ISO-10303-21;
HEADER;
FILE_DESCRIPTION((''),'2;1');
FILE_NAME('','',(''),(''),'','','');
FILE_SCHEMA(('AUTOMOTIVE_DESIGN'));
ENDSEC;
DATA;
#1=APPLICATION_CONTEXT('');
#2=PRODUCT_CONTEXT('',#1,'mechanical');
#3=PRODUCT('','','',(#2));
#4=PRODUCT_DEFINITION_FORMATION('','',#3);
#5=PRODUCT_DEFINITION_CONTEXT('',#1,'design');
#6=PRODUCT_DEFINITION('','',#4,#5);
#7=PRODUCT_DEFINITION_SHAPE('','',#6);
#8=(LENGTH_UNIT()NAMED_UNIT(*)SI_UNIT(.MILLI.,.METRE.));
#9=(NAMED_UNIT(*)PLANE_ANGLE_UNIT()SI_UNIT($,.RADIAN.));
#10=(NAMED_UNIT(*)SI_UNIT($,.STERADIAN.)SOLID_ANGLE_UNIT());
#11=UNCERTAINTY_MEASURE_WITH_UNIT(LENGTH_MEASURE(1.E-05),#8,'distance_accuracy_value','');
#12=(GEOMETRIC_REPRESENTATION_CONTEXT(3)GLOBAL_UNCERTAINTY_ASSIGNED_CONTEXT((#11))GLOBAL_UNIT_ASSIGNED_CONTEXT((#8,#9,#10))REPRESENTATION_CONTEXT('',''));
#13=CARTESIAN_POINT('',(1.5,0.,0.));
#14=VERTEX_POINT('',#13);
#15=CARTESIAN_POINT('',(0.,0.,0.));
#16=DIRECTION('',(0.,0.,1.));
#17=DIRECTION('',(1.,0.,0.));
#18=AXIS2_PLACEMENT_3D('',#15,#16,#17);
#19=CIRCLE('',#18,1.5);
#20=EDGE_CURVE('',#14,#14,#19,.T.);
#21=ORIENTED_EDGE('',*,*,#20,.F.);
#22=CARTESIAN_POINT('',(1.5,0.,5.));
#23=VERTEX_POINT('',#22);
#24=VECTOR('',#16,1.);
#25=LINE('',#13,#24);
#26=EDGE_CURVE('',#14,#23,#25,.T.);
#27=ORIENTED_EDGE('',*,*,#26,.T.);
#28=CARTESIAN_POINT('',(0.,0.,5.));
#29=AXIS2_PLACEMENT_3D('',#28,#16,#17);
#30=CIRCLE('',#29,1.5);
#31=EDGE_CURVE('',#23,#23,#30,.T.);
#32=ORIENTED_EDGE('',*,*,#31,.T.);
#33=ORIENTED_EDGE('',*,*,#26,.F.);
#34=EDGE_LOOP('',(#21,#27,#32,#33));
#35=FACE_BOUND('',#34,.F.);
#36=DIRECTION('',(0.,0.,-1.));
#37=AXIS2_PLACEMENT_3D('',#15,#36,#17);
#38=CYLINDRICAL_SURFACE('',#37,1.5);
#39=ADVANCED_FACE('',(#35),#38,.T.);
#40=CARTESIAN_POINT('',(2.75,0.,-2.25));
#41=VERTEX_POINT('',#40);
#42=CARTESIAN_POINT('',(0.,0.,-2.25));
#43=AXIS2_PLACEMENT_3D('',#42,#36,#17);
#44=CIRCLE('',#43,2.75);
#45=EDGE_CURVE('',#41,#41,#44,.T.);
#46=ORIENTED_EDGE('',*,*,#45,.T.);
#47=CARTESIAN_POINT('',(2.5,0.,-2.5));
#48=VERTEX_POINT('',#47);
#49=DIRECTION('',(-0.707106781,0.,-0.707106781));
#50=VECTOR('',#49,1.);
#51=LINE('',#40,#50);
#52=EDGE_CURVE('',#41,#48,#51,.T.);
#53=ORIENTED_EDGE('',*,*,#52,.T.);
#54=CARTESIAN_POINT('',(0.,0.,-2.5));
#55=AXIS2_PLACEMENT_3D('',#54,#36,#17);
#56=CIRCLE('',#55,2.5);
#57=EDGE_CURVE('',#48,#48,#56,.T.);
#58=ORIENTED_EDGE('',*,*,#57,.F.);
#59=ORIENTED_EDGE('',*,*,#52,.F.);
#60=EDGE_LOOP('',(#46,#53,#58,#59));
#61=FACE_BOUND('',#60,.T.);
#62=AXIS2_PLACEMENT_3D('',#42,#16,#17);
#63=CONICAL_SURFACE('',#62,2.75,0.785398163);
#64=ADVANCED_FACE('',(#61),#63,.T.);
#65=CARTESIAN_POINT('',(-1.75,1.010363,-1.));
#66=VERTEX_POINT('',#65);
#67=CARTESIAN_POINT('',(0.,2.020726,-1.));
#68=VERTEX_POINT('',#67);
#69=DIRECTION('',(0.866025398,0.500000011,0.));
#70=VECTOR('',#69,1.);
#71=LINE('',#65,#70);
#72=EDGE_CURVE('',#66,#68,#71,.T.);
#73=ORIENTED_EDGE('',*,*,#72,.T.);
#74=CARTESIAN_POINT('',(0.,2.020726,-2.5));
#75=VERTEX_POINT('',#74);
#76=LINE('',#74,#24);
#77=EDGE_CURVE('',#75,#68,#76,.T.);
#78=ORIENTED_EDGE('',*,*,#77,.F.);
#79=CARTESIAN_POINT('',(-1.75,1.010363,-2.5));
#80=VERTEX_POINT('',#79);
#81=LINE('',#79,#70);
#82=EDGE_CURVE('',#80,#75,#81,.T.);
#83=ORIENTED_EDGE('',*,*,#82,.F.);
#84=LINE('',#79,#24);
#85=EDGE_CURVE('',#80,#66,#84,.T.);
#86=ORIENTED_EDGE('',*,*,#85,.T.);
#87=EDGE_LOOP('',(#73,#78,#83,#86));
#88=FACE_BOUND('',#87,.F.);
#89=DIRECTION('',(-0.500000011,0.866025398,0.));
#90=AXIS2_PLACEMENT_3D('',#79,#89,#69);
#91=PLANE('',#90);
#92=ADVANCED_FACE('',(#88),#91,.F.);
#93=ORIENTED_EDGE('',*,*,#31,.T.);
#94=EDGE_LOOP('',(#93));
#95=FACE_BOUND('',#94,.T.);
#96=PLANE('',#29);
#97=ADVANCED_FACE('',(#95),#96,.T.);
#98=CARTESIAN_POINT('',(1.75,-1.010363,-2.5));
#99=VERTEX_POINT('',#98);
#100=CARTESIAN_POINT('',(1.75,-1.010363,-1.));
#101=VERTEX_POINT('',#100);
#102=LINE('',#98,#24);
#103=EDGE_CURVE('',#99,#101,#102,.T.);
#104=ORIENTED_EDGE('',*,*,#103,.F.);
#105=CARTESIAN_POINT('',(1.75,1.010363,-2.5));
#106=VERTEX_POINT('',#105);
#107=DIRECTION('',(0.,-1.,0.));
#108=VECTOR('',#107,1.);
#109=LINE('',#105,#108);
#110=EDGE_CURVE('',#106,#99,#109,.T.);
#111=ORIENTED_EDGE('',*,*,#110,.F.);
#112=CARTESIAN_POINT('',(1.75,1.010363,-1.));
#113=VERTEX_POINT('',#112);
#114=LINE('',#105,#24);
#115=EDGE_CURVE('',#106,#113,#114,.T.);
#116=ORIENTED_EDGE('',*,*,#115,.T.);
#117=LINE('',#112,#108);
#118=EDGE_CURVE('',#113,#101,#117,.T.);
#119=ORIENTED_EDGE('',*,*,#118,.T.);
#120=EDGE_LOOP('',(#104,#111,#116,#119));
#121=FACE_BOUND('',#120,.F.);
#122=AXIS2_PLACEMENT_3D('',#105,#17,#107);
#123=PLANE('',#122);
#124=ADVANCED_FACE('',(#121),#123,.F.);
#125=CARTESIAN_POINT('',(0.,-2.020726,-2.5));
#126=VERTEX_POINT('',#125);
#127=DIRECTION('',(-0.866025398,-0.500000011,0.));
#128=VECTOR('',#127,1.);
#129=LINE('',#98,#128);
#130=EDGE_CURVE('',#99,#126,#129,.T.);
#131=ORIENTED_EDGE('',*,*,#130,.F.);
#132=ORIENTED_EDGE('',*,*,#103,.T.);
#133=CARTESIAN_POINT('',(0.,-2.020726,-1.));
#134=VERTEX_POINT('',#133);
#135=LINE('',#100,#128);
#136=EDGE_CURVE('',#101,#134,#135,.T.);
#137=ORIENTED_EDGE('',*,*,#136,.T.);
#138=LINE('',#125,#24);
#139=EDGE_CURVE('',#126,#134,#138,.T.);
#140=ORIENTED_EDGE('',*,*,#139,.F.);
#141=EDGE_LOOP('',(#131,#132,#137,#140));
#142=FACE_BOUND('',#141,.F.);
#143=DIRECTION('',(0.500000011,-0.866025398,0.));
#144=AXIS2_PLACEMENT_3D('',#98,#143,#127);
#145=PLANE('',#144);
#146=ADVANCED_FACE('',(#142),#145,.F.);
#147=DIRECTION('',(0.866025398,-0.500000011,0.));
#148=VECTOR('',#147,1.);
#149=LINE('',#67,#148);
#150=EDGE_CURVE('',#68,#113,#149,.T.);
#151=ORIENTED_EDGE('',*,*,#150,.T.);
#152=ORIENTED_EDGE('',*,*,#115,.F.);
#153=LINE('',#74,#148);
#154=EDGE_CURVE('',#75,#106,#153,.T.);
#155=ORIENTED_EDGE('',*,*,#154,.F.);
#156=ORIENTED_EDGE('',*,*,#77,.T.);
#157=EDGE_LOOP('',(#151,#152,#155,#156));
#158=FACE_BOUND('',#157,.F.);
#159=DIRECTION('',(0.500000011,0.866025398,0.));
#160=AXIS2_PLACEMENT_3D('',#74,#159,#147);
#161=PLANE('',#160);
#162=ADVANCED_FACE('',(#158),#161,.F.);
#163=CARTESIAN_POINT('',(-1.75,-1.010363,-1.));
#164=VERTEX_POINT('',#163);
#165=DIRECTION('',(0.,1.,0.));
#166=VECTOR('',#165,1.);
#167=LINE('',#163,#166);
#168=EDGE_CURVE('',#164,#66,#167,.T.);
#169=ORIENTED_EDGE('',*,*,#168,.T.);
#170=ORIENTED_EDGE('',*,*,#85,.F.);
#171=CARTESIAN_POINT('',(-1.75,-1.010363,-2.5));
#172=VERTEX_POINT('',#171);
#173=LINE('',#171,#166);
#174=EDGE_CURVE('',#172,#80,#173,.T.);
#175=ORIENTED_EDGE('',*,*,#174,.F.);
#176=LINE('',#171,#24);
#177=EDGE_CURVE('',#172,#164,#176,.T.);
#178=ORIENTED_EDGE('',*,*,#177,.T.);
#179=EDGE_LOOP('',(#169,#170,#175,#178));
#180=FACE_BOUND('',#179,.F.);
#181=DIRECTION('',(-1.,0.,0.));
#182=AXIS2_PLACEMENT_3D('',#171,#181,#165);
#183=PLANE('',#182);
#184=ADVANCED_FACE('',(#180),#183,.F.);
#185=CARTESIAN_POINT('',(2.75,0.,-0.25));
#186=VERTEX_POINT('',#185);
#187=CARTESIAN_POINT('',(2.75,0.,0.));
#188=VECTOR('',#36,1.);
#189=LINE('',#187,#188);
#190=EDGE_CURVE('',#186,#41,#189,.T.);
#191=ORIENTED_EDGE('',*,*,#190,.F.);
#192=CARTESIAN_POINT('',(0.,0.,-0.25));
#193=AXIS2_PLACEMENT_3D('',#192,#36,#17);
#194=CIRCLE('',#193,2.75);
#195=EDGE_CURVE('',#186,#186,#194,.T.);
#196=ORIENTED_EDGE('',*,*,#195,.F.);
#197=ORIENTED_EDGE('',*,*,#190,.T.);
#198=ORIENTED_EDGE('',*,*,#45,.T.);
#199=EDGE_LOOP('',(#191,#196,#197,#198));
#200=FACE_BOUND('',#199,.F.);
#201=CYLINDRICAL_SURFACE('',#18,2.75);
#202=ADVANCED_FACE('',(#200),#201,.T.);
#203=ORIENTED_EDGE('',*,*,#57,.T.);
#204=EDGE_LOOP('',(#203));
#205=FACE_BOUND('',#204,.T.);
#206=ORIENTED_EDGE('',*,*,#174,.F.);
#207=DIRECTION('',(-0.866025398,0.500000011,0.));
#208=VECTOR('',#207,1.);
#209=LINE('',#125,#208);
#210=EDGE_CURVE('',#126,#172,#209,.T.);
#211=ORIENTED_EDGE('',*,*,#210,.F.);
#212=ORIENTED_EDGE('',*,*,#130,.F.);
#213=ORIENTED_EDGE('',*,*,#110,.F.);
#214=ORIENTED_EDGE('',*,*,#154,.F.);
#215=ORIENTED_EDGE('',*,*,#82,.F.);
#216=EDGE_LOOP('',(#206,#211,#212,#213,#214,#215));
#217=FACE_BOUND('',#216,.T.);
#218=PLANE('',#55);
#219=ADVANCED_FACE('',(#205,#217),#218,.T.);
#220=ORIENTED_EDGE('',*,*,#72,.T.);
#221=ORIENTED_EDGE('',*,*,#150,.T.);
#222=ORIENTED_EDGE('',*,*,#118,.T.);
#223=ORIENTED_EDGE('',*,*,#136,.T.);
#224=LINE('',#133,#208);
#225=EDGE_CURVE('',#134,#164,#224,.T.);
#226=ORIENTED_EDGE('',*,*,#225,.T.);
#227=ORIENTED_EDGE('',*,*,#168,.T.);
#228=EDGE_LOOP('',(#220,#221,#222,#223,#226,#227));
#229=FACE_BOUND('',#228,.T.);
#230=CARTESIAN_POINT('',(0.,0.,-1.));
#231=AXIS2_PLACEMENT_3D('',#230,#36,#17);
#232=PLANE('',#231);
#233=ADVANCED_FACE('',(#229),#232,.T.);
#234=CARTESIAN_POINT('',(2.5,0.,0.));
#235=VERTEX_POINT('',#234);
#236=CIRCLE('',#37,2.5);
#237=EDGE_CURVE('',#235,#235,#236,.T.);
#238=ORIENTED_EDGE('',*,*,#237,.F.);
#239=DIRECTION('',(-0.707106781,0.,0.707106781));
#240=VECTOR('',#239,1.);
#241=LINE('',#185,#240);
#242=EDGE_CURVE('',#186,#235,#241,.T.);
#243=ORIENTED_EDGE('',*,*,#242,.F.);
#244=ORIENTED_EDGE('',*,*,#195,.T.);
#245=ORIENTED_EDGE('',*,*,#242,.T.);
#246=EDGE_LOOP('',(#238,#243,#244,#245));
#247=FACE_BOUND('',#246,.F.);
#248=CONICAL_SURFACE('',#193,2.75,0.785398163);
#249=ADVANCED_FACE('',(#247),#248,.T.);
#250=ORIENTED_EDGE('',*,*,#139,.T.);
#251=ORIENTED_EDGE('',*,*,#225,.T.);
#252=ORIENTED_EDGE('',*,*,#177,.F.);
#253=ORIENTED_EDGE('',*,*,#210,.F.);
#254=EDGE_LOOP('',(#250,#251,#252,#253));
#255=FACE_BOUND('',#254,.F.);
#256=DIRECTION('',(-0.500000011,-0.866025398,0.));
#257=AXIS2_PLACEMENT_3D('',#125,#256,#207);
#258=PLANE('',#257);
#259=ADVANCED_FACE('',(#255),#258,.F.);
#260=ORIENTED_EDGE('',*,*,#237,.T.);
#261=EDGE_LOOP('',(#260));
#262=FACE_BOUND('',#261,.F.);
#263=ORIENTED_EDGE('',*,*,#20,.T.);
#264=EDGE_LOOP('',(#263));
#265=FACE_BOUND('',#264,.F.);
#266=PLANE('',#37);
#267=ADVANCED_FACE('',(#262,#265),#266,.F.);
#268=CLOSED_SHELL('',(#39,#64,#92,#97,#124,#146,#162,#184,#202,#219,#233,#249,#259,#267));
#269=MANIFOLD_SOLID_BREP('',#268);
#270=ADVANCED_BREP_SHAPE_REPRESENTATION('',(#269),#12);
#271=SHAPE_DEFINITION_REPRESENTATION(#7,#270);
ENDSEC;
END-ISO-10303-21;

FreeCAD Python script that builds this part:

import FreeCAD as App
import Part
import Sketcher

V = App.Vector
Q = App.Units.Quantity


def edges_at(feature, points):
    """Names of the edges that pass closest to the given points."""
    edges = feature.Shape.Edges
    near = lambda p: min(range(len(edges)), key=lambda i: edges[i].distToShape(Part.Vertex(*p))[0])
    return sorted({f"Edge{near(p) + 1}" for p in points})


def add_polygon(sketch, points):
    """Adds a closed chain of lines whose ends are joined by coincident constraints."""
    first, n = sketch.GeometryCount, len(points)
    for a, b in zip(points, points[1:] + points[:1]):
        sketch.addGeometry(Part.LineSegment(App.Vector(*a, 0), App.Vector(*b, 0)), False)
    for i in range(n):
        sketch.addConstraint(Sketcher.Constraint("Coincident", first + i, 2, first + (i + 1) % n, 1))

doc = App.newDocument("Part")
body = doc.addObject("PartDesign::Body", "Body")

sketch1 = body.newObject("Sketcher::SketchObject", "Sketch")
sketch1.AttachmentSupport = (doc.getObject("XY_Plane"), [""])
sketch1.MapMode = "FlatFace"
sketch1.addGeometry(Part.Circle(V(0, 0, 0), V(0, 0, 1), 1.5), False)
sketch1.addConstraint([
    Sketcher.Constraint("Coincident", 0, 3, -1, 1),
    Sketcher.Constraint("Diameter", 0, Q("3 mm")),
])
pad1 = body.newObject("PartDesign::Pad", "Pad")
pad1.Profile = sketch1
pad1.Length = 5

sketch2 = body.newObject("Sketcher::SketchObject", "Sketch001")
sketch2.AttachmentSupport = (doc.getObject("XY_Plane"), [""])
sketch2.MapMode = "FlatFace"
sketch2.addGeometry(Part.Circle(V(0, 0, 0), V(0, 0, 1), 2.8), False)
sketch2.addConstraint([
    Sketcher.Constraint("Coincident", 0, 3, -1, 1),
    Sketcher.Constraint("Diameter", 0, Q("5.5 mm")),
])
pad2 = body.newObject("PartDesign::Pad", "Pad001")
pad2.Profile = sketch2
pad2.Length = 2.5
pad2.Reversed = True

sketch3 = body.newObject("Sketcher::SketchObject", "Sketch002")
sketch3.AttachmentSupport = (doc.getObject("XY_Plane"), [""])
sketch3.MapMode = "FlatFace"
sketch3.AttachmentOffset = App.Placement(V(0, 0, -2.5), App.Rotation())
add_polygon(sketch3, [(1.8, 1), (1.8, -1), (0, -2), (-1.8, -1), (-1.8, 1), (0, 2)])
sketch3.addConstraint([
    Sketcher.Constraint("Vertical", 0),
    Sketcher.Constraint("Vertical", 3),
    Sketcher.Constraint("Symmetric", 0, 2, 3, 2, -1, 1),
    Sketcher.Constraint("Symmetric", 1, 2, 4, 2, -1, 1),
    Sketcher.Constraint("PointOnObject", 1, 2, -2),
    Sketcher.Constraint("Parallel", 2, 5),
    Sketcher.Constraint("Horizontal", 0, 2, 2, 2),
    Sketcher.Constraint("Angle", 1, Q("-149.999999 deg")),
    Sketcher.Constraint("DistanceX", 2, 2, 0, 2, Q("3.5 mm")),
    Sketcher.Constraint("DistanceY", 0, 2, 0, 1, Q("2.020726 mm")),
])
pocket1 = body.newObject("PartDesign::Pocket", "Pocket")
pocket1.Profile = sketch3
pocket1.Length = 1.5
pocket1.Reversed = True
doc.recompute()

chamfer = body.newObject("PartDesign::Chamfer", "Chamfer")
chamfer.Base = (pocket1, edges_at(pocket1, [(-2.75, 0, 0), (-2.75, 0, -2.5)]))
chamfer.Size = 0.25

doc.recompute()
